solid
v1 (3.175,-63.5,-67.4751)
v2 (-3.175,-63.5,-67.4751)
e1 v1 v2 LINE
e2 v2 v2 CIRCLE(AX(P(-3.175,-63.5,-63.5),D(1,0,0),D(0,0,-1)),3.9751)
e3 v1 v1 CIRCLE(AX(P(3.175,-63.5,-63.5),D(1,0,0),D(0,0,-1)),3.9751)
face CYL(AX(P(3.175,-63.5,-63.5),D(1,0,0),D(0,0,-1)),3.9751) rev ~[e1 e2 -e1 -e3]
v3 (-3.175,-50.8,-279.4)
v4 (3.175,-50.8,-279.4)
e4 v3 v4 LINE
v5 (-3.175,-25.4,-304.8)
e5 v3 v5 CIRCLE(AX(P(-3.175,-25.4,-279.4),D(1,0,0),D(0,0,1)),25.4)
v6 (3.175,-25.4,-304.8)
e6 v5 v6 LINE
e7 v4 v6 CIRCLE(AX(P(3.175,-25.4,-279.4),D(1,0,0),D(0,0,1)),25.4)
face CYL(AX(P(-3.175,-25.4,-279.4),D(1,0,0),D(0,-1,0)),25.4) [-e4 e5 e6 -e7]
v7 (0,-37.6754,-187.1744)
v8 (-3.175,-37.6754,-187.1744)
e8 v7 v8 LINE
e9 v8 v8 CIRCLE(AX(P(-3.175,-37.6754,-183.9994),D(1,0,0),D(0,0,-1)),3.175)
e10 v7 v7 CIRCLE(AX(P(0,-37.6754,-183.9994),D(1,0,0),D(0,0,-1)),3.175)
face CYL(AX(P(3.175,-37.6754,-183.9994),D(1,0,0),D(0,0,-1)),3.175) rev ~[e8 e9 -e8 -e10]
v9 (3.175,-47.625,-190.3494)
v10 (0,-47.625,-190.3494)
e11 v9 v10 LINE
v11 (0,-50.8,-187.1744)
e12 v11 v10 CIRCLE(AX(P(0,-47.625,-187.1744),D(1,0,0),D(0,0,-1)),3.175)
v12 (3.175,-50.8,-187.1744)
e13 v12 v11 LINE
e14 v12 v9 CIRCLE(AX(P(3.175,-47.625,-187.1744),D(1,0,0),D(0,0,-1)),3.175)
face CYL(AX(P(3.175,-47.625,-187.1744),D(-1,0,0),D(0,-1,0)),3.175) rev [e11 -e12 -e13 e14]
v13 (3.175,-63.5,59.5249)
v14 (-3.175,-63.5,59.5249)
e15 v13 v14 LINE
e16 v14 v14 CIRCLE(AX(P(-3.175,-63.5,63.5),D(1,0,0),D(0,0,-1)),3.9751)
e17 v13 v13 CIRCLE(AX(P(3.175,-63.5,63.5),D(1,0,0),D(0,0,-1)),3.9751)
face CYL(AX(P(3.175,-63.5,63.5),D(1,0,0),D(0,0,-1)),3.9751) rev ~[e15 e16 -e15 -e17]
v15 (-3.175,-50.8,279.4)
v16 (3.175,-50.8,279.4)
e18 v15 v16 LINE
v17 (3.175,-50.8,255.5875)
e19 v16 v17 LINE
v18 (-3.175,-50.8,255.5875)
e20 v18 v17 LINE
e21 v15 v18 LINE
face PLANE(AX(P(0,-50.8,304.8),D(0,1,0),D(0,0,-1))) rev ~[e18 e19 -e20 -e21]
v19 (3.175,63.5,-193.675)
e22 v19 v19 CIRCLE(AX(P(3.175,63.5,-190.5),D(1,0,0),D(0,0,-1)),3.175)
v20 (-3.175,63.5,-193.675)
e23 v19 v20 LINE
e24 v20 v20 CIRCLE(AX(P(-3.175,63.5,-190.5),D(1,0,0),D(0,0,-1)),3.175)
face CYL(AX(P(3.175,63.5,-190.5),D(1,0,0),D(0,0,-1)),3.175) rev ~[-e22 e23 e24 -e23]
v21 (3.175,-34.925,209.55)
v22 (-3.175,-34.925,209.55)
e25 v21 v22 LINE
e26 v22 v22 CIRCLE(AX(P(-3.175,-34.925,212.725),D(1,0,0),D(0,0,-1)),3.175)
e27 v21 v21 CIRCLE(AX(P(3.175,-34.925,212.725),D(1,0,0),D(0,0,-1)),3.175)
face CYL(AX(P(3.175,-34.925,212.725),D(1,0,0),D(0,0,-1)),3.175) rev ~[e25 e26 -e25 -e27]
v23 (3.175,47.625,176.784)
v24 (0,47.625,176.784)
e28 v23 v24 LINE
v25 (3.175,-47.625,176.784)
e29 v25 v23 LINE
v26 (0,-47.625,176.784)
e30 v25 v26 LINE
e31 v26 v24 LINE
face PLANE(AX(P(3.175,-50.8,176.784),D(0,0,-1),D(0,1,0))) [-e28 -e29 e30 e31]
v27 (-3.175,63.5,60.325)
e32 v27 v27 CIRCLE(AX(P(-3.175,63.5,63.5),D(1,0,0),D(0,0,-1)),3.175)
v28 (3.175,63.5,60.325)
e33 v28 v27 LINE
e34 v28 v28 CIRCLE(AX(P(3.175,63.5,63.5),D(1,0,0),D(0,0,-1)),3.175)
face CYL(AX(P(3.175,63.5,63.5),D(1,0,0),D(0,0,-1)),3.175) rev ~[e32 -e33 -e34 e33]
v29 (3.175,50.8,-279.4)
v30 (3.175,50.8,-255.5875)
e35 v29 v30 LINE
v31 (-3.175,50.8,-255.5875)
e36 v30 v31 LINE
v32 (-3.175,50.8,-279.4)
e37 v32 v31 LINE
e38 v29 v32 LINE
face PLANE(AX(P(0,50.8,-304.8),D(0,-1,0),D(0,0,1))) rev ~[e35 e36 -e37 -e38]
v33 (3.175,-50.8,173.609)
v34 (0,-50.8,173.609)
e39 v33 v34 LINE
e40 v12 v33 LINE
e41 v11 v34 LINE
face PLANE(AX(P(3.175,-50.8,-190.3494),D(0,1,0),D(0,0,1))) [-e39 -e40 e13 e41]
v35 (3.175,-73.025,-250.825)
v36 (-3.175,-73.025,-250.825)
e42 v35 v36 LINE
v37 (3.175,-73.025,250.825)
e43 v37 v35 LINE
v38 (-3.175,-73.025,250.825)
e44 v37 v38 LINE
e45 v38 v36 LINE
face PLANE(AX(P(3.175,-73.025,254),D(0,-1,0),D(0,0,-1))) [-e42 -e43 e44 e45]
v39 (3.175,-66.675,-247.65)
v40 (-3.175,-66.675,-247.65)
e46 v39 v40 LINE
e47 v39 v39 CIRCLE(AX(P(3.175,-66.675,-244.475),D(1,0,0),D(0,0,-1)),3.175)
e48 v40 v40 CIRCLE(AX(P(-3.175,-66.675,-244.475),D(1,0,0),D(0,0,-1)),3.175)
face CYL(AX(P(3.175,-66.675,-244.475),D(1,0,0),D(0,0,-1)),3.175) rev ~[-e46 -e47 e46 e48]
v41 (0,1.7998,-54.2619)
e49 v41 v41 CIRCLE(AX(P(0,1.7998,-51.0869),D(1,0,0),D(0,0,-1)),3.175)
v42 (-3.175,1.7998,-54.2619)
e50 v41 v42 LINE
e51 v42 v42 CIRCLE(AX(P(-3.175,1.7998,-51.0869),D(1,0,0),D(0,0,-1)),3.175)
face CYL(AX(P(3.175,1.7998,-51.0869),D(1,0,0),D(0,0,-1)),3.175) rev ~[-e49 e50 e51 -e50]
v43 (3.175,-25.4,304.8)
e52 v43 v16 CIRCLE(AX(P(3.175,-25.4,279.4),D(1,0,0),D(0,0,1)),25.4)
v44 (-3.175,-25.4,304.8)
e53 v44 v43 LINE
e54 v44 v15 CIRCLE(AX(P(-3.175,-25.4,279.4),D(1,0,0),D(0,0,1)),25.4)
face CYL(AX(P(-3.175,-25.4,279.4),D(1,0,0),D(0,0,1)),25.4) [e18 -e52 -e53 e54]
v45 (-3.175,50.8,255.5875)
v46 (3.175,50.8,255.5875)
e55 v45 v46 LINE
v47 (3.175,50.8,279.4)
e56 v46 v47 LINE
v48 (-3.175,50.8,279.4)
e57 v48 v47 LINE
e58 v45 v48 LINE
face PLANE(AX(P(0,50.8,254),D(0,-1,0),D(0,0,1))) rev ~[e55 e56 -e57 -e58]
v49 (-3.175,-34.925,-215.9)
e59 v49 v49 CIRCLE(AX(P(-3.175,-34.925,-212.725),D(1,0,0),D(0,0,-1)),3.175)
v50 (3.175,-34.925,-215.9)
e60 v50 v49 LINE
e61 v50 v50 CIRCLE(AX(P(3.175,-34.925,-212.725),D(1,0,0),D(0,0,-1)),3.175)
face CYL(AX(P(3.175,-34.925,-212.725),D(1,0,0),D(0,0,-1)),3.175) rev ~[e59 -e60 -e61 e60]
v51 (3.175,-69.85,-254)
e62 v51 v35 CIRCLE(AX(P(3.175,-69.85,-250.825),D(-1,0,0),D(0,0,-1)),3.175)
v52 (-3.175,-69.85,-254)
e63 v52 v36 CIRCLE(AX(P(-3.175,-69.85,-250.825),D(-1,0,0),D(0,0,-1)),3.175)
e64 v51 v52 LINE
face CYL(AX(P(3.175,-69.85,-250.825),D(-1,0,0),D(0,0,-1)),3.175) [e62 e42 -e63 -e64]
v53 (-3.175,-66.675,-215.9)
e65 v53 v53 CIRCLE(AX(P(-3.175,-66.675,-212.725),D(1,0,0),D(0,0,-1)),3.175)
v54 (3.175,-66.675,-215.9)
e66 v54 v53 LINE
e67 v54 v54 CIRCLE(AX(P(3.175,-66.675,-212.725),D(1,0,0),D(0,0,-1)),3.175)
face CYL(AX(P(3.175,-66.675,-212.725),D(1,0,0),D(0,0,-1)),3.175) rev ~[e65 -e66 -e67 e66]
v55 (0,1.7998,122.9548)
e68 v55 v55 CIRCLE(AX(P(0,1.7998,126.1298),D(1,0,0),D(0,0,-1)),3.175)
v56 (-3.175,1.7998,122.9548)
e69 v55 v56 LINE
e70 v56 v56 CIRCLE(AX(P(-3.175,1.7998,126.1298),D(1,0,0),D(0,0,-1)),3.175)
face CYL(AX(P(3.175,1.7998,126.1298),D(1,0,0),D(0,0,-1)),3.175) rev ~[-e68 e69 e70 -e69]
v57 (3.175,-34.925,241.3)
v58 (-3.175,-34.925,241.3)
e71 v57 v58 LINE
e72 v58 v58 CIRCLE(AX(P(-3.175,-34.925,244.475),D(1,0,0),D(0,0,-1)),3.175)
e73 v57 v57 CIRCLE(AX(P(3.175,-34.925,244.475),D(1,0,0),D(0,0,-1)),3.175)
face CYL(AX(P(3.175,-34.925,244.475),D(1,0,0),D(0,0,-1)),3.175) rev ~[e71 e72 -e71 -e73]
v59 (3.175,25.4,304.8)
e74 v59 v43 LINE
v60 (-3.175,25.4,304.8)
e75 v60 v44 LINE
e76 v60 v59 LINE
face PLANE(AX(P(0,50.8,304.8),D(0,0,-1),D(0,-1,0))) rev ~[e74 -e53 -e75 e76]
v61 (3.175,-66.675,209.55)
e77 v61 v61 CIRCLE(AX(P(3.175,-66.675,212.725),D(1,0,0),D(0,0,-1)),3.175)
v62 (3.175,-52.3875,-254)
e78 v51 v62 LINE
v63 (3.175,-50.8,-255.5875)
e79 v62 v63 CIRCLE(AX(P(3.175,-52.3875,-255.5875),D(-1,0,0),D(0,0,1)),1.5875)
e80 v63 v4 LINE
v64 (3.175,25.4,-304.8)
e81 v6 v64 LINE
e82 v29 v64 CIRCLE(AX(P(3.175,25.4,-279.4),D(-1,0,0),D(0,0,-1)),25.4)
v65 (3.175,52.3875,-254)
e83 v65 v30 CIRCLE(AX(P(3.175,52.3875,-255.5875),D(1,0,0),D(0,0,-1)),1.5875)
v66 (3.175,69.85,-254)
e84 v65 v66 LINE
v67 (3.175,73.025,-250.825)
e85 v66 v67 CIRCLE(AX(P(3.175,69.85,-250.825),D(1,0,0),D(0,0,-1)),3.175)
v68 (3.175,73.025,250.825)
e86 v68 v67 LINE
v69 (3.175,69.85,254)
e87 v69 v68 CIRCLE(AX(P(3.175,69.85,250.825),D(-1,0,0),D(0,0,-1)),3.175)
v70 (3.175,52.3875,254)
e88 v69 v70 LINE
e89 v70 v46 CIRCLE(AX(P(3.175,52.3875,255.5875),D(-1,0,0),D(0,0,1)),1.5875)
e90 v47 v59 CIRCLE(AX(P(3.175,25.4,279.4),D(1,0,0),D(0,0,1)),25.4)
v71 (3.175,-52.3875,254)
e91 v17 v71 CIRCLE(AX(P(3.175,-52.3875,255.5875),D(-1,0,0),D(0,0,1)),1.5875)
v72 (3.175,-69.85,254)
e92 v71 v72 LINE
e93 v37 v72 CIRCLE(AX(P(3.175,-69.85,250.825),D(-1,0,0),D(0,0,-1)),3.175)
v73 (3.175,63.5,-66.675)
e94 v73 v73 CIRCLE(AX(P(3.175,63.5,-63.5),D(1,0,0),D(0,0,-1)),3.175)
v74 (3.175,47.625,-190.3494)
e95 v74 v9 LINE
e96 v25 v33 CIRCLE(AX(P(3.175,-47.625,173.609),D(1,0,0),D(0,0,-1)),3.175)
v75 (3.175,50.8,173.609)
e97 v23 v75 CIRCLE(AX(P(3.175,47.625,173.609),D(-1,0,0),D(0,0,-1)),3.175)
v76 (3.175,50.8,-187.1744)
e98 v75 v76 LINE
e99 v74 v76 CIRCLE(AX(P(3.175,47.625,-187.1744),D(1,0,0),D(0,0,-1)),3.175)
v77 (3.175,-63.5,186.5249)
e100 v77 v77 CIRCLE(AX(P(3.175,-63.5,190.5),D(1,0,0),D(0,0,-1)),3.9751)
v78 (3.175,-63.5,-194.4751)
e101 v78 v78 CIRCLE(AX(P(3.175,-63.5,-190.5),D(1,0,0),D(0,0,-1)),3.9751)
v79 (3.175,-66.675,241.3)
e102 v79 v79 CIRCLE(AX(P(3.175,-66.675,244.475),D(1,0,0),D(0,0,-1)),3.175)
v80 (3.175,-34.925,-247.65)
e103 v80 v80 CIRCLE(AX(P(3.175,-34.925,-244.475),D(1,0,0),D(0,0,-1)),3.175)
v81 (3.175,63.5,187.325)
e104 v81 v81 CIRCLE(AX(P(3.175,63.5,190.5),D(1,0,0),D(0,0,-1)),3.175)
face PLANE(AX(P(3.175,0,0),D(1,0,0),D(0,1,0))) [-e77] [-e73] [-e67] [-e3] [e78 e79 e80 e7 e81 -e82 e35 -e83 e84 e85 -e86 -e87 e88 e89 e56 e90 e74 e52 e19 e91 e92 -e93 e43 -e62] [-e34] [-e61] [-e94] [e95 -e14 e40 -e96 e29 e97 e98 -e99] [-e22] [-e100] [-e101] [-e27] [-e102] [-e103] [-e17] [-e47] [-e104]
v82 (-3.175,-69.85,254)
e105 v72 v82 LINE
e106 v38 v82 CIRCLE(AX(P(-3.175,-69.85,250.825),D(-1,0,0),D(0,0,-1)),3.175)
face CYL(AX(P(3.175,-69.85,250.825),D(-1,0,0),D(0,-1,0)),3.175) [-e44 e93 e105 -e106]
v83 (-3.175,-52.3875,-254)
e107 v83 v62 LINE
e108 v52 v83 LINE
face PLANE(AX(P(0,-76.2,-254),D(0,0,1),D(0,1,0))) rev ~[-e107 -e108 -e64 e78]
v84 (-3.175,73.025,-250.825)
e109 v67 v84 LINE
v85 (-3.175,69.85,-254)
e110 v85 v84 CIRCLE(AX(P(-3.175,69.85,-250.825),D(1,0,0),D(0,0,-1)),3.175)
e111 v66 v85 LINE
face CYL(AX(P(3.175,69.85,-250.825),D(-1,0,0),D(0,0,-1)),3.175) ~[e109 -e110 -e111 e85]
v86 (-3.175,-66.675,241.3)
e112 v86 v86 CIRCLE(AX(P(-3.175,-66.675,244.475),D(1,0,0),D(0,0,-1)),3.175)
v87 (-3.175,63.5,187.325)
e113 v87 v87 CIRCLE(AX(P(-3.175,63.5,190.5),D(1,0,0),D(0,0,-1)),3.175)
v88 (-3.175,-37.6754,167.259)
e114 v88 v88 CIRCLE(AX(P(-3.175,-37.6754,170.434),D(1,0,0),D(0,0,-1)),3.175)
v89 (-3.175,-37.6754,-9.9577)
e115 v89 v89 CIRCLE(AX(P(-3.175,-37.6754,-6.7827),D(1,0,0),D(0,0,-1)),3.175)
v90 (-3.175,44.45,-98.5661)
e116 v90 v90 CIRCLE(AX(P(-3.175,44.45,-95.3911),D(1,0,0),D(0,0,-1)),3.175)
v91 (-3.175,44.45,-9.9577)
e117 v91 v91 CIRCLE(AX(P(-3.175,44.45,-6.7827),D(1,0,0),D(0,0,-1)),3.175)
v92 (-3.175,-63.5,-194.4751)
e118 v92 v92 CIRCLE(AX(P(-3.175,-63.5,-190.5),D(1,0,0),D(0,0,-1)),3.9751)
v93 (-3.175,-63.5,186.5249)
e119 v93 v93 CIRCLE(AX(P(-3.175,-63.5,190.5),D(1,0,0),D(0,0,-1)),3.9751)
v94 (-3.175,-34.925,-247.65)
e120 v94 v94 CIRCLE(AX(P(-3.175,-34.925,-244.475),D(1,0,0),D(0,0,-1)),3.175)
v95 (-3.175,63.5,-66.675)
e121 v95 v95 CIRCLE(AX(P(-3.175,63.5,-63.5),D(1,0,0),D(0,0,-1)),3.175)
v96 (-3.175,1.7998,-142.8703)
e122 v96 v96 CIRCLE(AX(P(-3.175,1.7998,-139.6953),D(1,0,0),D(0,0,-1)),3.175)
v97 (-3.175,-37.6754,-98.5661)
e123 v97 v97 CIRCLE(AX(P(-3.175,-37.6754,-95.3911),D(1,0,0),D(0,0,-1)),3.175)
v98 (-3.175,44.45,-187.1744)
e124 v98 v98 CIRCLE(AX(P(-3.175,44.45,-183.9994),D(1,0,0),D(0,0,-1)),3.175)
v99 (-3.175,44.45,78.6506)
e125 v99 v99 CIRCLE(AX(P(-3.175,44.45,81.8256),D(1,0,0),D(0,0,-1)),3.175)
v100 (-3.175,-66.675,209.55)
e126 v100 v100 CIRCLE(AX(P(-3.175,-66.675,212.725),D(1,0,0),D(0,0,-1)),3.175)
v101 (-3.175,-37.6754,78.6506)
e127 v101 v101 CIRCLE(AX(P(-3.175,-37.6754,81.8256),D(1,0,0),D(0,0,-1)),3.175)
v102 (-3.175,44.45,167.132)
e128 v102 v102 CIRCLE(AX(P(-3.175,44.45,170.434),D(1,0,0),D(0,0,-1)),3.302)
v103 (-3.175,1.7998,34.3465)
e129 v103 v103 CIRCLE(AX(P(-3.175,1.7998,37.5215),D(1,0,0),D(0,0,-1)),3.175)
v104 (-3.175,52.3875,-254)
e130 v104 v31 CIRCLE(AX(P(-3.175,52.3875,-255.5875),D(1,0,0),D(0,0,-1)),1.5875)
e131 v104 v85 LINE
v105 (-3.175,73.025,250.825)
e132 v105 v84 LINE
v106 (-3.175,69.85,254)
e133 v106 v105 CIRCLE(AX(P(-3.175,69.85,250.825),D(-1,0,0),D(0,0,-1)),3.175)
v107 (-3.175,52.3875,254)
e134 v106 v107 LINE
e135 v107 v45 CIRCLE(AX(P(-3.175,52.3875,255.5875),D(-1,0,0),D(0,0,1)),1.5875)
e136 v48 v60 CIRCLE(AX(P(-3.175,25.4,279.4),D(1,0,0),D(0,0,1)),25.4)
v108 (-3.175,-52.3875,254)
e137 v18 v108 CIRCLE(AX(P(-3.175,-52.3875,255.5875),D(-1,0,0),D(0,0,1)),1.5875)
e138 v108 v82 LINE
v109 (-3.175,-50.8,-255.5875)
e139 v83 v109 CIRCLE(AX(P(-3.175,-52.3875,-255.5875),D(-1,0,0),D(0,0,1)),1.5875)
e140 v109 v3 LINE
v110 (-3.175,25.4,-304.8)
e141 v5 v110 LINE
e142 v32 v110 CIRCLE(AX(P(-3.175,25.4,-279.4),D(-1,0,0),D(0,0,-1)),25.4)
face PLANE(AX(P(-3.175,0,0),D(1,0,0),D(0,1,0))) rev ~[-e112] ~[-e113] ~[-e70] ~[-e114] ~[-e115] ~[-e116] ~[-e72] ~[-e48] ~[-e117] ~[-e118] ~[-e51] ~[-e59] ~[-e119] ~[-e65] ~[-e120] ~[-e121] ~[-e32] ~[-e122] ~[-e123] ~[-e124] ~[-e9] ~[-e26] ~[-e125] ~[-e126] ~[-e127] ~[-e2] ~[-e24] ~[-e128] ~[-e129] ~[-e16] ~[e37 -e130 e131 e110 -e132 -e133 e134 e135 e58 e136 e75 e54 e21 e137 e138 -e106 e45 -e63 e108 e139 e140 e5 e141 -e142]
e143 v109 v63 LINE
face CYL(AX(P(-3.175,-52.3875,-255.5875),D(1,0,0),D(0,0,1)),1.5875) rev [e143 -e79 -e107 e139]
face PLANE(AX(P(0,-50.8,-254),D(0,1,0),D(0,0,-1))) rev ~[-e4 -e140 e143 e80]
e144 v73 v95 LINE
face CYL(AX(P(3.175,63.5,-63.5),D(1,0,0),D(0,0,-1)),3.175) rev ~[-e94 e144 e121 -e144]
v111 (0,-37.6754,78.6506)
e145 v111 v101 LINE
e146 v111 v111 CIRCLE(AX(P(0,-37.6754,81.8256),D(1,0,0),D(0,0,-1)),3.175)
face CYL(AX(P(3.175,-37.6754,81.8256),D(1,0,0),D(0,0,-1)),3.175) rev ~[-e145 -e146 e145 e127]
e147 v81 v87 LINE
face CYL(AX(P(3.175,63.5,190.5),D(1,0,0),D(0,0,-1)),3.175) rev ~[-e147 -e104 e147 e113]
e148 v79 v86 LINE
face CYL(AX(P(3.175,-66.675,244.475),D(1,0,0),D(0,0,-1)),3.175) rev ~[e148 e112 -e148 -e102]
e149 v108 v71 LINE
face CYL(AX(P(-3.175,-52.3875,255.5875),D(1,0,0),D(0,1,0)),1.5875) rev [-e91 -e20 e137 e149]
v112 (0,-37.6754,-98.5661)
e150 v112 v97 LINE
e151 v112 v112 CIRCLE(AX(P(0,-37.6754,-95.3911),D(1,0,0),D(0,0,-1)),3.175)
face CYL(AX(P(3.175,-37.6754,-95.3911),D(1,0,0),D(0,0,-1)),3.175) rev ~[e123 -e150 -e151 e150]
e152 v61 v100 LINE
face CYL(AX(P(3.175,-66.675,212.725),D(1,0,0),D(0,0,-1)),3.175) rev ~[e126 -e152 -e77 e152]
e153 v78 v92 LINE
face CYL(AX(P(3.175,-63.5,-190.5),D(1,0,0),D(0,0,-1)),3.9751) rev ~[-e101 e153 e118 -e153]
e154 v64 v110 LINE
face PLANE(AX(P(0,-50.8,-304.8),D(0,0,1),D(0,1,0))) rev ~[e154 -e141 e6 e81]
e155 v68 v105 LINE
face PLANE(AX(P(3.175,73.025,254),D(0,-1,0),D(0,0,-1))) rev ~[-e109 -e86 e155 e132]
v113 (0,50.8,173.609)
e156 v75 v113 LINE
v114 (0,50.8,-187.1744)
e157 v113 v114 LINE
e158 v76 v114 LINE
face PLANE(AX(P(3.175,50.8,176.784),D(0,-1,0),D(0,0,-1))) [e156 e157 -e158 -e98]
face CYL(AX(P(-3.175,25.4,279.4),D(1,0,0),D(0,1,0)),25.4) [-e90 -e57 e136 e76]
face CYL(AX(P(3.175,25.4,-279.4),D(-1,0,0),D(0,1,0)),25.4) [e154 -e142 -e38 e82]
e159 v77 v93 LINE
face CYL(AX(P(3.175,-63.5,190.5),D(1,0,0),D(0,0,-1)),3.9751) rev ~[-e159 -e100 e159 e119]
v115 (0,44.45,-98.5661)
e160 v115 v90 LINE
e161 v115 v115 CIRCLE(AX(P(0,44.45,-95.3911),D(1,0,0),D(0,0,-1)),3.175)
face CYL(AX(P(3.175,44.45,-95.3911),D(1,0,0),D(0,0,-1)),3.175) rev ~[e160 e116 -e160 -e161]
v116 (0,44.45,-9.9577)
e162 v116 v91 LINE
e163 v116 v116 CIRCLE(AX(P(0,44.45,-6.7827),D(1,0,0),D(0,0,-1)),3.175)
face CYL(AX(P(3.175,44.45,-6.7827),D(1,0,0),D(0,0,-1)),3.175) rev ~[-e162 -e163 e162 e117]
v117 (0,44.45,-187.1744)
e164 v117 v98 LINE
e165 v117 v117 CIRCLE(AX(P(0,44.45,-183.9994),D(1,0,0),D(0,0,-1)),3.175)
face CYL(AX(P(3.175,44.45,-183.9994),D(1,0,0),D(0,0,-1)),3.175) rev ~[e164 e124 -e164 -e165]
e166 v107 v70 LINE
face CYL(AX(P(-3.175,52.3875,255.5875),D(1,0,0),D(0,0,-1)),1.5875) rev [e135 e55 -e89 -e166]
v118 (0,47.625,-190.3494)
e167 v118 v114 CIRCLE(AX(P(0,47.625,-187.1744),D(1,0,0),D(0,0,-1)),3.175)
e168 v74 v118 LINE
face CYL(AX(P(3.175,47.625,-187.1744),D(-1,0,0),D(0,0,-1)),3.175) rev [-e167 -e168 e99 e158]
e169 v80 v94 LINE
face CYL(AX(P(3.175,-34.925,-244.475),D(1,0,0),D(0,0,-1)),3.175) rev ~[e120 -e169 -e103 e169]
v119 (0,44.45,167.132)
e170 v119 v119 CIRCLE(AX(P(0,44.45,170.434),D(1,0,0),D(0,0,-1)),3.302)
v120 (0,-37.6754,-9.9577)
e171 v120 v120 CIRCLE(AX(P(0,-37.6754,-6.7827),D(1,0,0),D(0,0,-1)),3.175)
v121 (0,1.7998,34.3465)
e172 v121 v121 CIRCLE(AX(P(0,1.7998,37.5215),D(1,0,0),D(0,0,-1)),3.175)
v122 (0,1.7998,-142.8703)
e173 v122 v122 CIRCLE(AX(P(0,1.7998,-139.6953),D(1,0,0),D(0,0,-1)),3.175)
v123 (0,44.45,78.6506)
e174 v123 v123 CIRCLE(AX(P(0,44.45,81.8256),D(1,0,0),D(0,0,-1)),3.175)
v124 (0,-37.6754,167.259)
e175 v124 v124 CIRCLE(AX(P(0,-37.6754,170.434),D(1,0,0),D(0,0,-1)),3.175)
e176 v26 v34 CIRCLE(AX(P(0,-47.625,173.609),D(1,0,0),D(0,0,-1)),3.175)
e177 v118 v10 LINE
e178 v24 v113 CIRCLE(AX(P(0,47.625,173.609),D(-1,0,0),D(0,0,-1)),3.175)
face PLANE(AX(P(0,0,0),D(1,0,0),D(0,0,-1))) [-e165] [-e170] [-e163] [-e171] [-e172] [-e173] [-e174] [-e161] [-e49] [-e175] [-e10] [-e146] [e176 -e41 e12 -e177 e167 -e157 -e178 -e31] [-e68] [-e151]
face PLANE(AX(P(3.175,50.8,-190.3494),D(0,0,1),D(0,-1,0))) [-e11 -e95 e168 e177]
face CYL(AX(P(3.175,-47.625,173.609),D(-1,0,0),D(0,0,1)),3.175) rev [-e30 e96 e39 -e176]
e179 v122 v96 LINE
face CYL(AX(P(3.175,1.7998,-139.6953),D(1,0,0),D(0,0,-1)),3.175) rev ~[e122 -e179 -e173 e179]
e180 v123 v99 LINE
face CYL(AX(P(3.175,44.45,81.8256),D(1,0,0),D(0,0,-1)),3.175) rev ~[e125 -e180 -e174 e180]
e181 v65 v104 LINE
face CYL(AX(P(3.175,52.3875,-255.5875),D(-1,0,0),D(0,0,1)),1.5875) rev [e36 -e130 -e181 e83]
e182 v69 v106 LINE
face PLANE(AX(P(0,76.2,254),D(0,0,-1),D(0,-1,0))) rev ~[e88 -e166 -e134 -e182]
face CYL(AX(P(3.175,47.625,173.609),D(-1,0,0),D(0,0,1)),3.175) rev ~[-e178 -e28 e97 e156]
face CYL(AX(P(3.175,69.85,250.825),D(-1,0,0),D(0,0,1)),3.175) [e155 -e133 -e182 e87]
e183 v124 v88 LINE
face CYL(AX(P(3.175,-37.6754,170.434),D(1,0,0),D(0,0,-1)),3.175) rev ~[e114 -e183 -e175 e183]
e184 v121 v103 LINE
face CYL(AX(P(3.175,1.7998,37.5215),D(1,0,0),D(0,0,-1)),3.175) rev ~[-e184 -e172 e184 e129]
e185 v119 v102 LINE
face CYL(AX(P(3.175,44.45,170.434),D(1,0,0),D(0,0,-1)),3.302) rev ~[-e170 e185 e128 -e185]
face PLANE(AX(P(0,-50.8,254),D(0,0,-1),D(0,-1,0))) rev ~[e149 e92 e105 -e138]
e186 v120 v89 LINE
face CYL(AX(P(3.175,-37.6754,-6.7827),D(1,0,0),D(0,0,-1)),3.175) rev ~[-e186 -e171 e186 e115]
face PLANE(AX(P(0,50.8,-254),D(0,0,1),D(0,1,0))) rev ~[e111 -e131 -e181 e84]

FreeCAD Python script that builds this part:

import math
import FreeCAD as App
import Part
import Sketcher

V = App.Vector
Q = App.Units.Quantity


def edges_at(feature, points):
    """Names of the edges that pass closest to the given points."""
    edges = feature.Shape.Edges
    near = lambda p: min(range(len(edges)), key=lambda i: edges[i].distToShape(Part.Vertex(*p))[0])
    return sorted({f"Edge{near(p) + 1}" for p in points})


def add_polygon(sketch, points):
    """Adds a closed chain of lines whose ends are joined by coincident constraints."""
    first, n = sketch.GeometryCount, len(points)
    for a, b in zip(points, points[1:] + points[:1]):
        sketch.addGeometry(Part.LineSegment(App.Vector(*a, 0), App.Vector(*b, 0)), False)
    for i in range(n):
        sketch.addConstraint(Sketcher.Constraint("Coincident", first + i, 2, first + (i + 1) % n, 1))

doc = App.newDocument("Part")
body = doc.addObject("PartDesign::Body", "Body")

sketch1 = body.newObject("Sketcher::SketchObject", "Sketch")
sketch1.AttachmentSupport = (doc.getObject("YZ_Plane"), [""])
sketch1.MapMode = "FlatFace"
add_polygon(sketch1, [(76, -254), (76, 254), (51, 254), (51, 305), (-51, 305), (-51, 254), (-76, 254), (-76, -254), (-51, -254), (-51, -305), (51, -305), (51, -254)])
sketch1.addConstraint([
    Sketcher.Constraint("Vertical", 0),
    Sketcher.Constraint("Horizontal", 1),
    Sketcher.Constraint("Vertical", 2),
    Sketcher.Constraint("Horizontal", 3),
    Sketcher.Constraint("Vertical", 4),
    Sketcher.Constraint("Horizontal", 5),
    Sketcher.Constraint("Vertical", 6),
    Sketcher.Constraint("Horizontal", 7),
    Sketcher.Constraint("Vertical", 8),
    Sketcher.Constraint("Horizontal", 9),
    Sketcher.Constraint("Vertical", 10),
    Sketcher.Constraint("Horizontal", 11),
    Sketcher.Constraint("Symmetric", 0, 2, 6, 2, -1, 1),
    Sketcher.Constraint("Symmetric", 2, 2, 8, 2, -1, 1),
    Sketcher.Constraint("Symmetric", 4, 2, 10, 2, -1, 1),
    Sketcher.Constraint("Symmetric", 1, 2, 4, 2, -2),
    Sketcher.Constraint("DistanceX", 3, 2, 3, 1, Q("4 in")),
    Sketcher.Constraint("DistanceY", 0, 1, 0, 2, Q("20 in")),
    Sketcher.Constraint("DistanceY", 2, 1, 2, 2, Q("2 in")),
    Sketcher.Constraint("DistanceX", 5, 2, 0, 2, Q("6 in")),
])
pad1 = body.newObject("PartDesign::Pad", "Pad")
pad1.Profile = sketch1
pad1.Length = Q("0.25 in")
pad1.Midplane = True
doc.recompute()

fillet = body.newObject("PartDesign::Fillet", "Fillet")
fillet.Base = (pad1, edges_at(pad1, [
    (0, 50.8, 304.8),
    (0, -50.8, 304.8),
    (0, 50.8, -304.8),
    (0, -50.8, -304.8),
]))
fillet.Radius = Q("1 in")
doc.recompute()

fillet2 = body.newObject("PartDesign::Fillet", "Fillet001")
fillet2.Base = (fillet, edges_at(fillet, [
    (0, 50.8, 254),
    (0, -50.8, 254),
    (0, -76.2, 254),
    (0, 76.2, 254),
    (0, 76.2, -254),
    (0, 50.8, -254),
    (0, -50.8, -254),
    (0, -76.2, -254),
]))
fillet2.Radius = Q("0.0625 in")

sketch2 = body.newObject("Sketcher::SketchObject", "Sketch001")
sketch2.AttachmentSupport = (doc.getObject("YZ_Plane"), [""])
sketch2.MapMode = "FlatFace"
sketch2.AttachmentOffset = App.Placement(V(0, 0, 0.125 * 25.4), App.Rotation())
sketch2.addGeometry([
    Part.Circle(V(63.5, 190.5, 0), V(0, 0, 1), 3.2),
    Part.Circle(V(-63.5, 190.5, 0), V(0, 0, 1), 4),
    Part.Circle(V(63.5, 63.5, 0), V(0, 0, 1), 3.2),
    Part.Circle(V(-63.5, 63.5, 0), V(0, 0, 1), 4),
    Part.Circle(V(63.5, -63.5, 0), V(0, 0, 1), 3.2),
    Part.Circle(V(-63.5, -63.5, 0), V(0, 0, 1), 4),
    Part.Circle(V(63.5, -190.5, 0), V(0, 0, 1), 3.2),
    Part.Circle(V(-63.5, -190.5, 0), V(0, 0, 1), 4),
], False)
sketch2.addConstraint([
    Sketcher.Constraint("Equal", 0, 2),
    Sketcher.Constraint("Equal", 1, 3),
    Sketcher.Constraint("Equal", 2, 4),
    Sketcher.Constraint("Equal", 3, 5),
    Sketcher.Constraint("Equal", 4, 6),
    Sketcher.Constraint("Equal", 5, 7),
    Sketcher.Constraint("Symmetric", 3, 3, 4, 3, -1, 1),
    Sketcher.Constraint("Symmetric", 2, 3, 5, 3, -1, 1),
    Sketcher.Constraint("Symmetric", 1, 3, 6, 3, -1, 1),
    Sketcher.Constraint("Symmetric", 0, 3, 7, 3, -1, 1),
    Sketcher.Constraint("Symmetric", 0, 3, 1, 3, -2),
    Sketcher.Constraint("Symmetric", 2, 3, 3, 3, -2),
    Sketcher.Constraint("Vertical", 0, 3, 2, 3),
    Sketcher.Constraint("Diameter", 0, Q("0.25 in")),
    Sketcher.Constraint("Diameter", 1, Q("0.313 in")),
    Sketcher.Constraint("DistanceX", 1, 3, 0, 3, Q("5 in")),
    Sketcher.Constraint("DistanceY", 2, 3, 0, 3, Q("5 in")),
    Sketcher.Constraint("DistanceY", 4, 3, 2, 3, Q("5 in")),
])
pocket1 = body.newObject("PartDesign::Pocket", "Pocket")
pocket1.Profile = sketch2
pocket1.Type = "ThroughAll"

sketch3 = body.newObject("Sketcher::SketchObject", "Sketch002")
sketch3.AttachmentSupport = (doc.getObject("YZ_Plane"), [""])
sketch3.MapMode = "FlatFace"
sketch3.AttachmentOffset = App.Placement(V(0, 0, 0.125 * 25.4), App.Rotation())
sketch3.addGeometry([
    Part.Circle(V(44.5, 170.4, 0), V(0, 0, 1), 3.3),
    Part.Circle(V(44.5, -184, 0), V(0, 0, 1), 3.2),
    Part.Circle(V(44.5, 81.8, 0), V(0, 0, 1), 3.2),
    Part.Circle(V(44.5, -6.8, 0), V(0, 0, 1), 3.2),
    Part.Circle(V(44.5, -95.4, 0), V(0, 0, 1), 3.2),
    Part.Circle(V(1.8, 37.5, 0), V(0, 0, 1), 3.2),
    Part.Circle(V(1.8, -51.1, 0), V(0, 0, 1), 3.2),
    Part.Circle(V(1.8, 126.1, 0), V(0, 0, 1), 3.2),
    Part.Circle(V(1.8, -139.7, 0), V(0, 0, 1), 3.2),
    Part.Circle(V(-37.7, 170.4, 0), V(0, 0, 1), 3.2),
    Part.Circle(V(-37.7, 81.8, 0), V(0, 0, 1), 3.2),
    Part.Circle(V(-37.7, -6.8, 0), V(0, 0, 1), 3.2),
    Part.Circle(V(-37.7, -95.4, 0), V(0, 0, 1), 3.2),
    Part.Circle(V(-37.7, -184, 0), V(0, 0, 1), 3.2),
], False)
sketch3.addConstraint([
    Sketcher.Constraint("Equal", 1, 2),
    Sketcher.Constraint("Equal", 2, 3),
    Sketcher.Constraint("Equal", 3, 4),
    Sketcher.Constraint("Equal", 4, 5),
    Sketcher.Constraint("Equal", 5, 6),
    Sketcher.Constraint("Equal", 6, 7),
    Sketcher.Constraint("Equal", 7, 8),
    Sketcher.Constraint("Equal", 8, 9),
    Sketcher.Constraint("Equal", 9, 10),
    Sketcher.Constraint("Equal", 10, 11),
    Sketcher.Constraint("Equal", 11, 12),
    Sketcher.Constraint("Equal", 12, 13),
    Sketcher.Constraint("Horizontal", 0, 3, 9, 3),
    Sketcher.Constraint("Horizontal", 2, 3, 10, 3),
    Sketcher.Constraint("Horizontal", 3, 3, 11, 3),
    Sketcher.Constraint("Horizontal", 4, 3, 12, 3),
    Sketcher.Constraint("Horizontal", 1, 3, 13, 3),
    Sketcher.Constraint("Vertical", 0, 3, 1, 3),
    Sketcher.Constraint("Vertical", 1, 3, 2, 3),
    Sketcher.Constraint("Vertical", 2, 3, 3, 3),
    Sketcher.Constraint("Vertical", 3, 3, 4, 3),
    Sketcher.Constraint("Vertical", 5, 3, 6, 3),
    Sketcher.Constraint("Vertical", 6, 3, 7, 3),
    Sketcher.Constraint("Vertical", 7, 3, 8, 3),
    Sketcher.Constraint("Vertical", 9, 3, 10, 3),
    Sketcher.Constraint("Vertical", 10, 3, 11, 3),
    Sketcher.Constraint("Vertical", 11, 3, 12, 3),
    Sketcher.Constraint("Vertical", 12, 3, 13, 3),
    Sketcher.Constraint("Diameter", 0, Q("0.26 in")),
    Sketcher.Constraint("Diameter", 1, Q("0.25 in")),
    Sketcher.Constraint("DistanceX", -1, 1, 0, 3, Q("1.75 in")),
    Sketcher.Constraint("DistanceY", -1, 1, 0, 3, Q("6.71 in")),
    Sketcher.Constraint("DistanceY", 2, 3, 0, 3, 88.6084),
    Sketcher.Constraint("DistanceY", 3, 3, 2, 3, 88.6083),
    Sketcher.Constraint("DistanceY", 1, 3, 3, 3, 177.2167),
    Sketcher.Constraint("DistanceY", 1, 3, 4, 3, 88.6083),
    Sketcher.Constraint("DistanceX", 5, 3, 2, 3, 42.6502),
    Sketcher.Constraint("DistanceY", 5, 3, 2, 3, 44.304),
    Sketcher.Constraint("DistanceY", 6, 3, 3, 3, 44.3042),
    Sketcher.Constraint("DistanceY", 7, 3, 0, 3, 44.3042),
    Sketcher.Constraint("DistanceY", 1, 3, 8, 3, 44.304),
    Sketcher.Constraint("DistanceX", 9, 3, 0, 3, 82.1254),
])
pocket2 = body.newObject("PartDesign::Pocket", "Pocket001")
pocket2.Profile = sketch3
pocket2.Length = Q("1 in")

sketch4 = body.newObject("Sketcher::SketchObject", "Sketch003")
sketch4.AttachmentSupport = (doc.getObject("YZ_Plane"), [""])
sketch4.MapMode = "FlatFace"
sketch4.AttachmentOffset = App.Placement(V(0, 0, 0.125 * 25.4), App.Rotation())
add_polygon(sketch4, [(51, -190), (51, 177), (-51, 177), (-51, -190)])
sketch4.addConstraint([
    Sketcher.Constraint("Vertical", 0),
    Sketcher.Constraint("Horizontal", 1),
    Sketcher.Constraint("Vertical", 2),
    Sketcher.Constraint("Horizontal", 3),
    Sketcher.Constraint("DistanceX", 1, 2, 1, 1, Q("4 in")),
    Sketcher.Constraint("DistanceX", -1, 1, 0, 2, Q("2 in")),
    Sketcher.Constraint("DistanceY", 0, 1, 0, 2, 367.1334),
    Sketcher.Constraint("DistanceY", -1, 1, 0, 2, Q("6.96 in")),
])
pocket3 = body.newObject("PartDesign::Pocket", "Pocket002")
pocket3.Profile = sketch4
pocket3.Length = Q("0.125 in")
doc.recompute()

fillet3 = body.newObject("PartDesign::Fillet", "Fillet002")
fillet3.Base = (pocket3, edges_at(pocket3, [
    (1.587, 50.8, 176.784),
    (1.587, -50.8, 176.784),
    (1.587, -50.8, -190.349),
    (1.587, 50.8, -190.349),
]))
fillet3.Radius = Q("0.125 in")

sketch5 = body.newObject("Sketcher::SketchObject", "Sketch004")
sketch5.AttachmentSupport = (doc.getObject("YZ_Plane"), [""])
sketch5.MapMode = "FlatFace"
sketch5.AttachmentOffset = App.Placement(V(0, 0, 0.125 * 25.4), App.Rotation())
sketch5.addGeometry([
    Part.Circle(V(-34.9, 244.5, 0), V(0, 0, 1), 3.2),
    Part.Circle(V(-66.7, 244.5, 0), V(0, 0, 1), 3.2),
    Part.Circle(V(-66.7, 212.7, 0), V(0, 0, 1), 3.2),
    Part.Circle(V(-34.9, 212.7, 0), V(0, 0, 1), 3.2),
    Part.Circle(V(-34.9, -212.7, 0), V(0, 0, 1), 3.2),
    Part.Circle(V(-34.9, -244.5, 0), V(0, 0, 1), 3.2),
    Part.Circle(V(-66.7, -212.7, 0), V(0, 0, 1), 3.2),
    Part.Circle(V(-66.7, -244.5, 0), V(0, 0, 1), 3.2),
], False)
sketch5.addConstraint([
    Sketcher.Constraint("Equal", 0, 1),
    Sketcher.Constraint("Equal", 1, 2),
    Sketcher.Constraint("Equal", 2, 3),
    Sketcher.Constraint("Equal", 3, 4),
    Sketcher.Constraint("Equal", 4, 5),
    Sketcher.Constraint("Equal", 5, 6),
    Sketcher.Constraint("Equal", 6, 7),
    Sketcher.Constraint("Symmetric", 3, 3, 4, 3, -1),
    Sketcher.Constraint("Symmetric", 0, 3, 5, 3, -1),
    Sketcher.Constraint("Symmetric", 2, 3, 6, 3, -1),
    Sketcher.Constraint("Symmetric", 1, 3, 7, 3, -1),
    Sketcher.Constraint("Horizontal", 0, 3, 1, 3),
    Sketcher.Constraint("Horizontal", 2, 3, 3, 3),
    Sketcher.Constraint("Vertical", 1, 3, 2, 3),
    Sketcher.Constraint("Vertical", 0, 3, 3, 3),
    Sketcher.Constraint("Diameter", 0, Q("0.25 in")),
    Sketcher.Constraint("DistanceY", 4, 3, 0, 3, Q("18 in")),
    Sketcher.Constraint("DistanceX", 1, 3, 0, 3, Q("1.25 in")),
    Sketcher.Constraint("DistanceY", 2, 3, 1, 3, Q("1.25 in")),
    Sketcher.Constraint("DistanceX", 0, 3, -1, 1, Q("1.375 in")),
])
pocket4 = body.newObject("PartDesign::Pocket", "Pocket003")
pocket4.Profile = sketch5
pocket4.Length = Q("1 in")

sketch6 = body.newObject("Sketcher::SketchObject", "Sketch005")
sketch6.AttachmentSupport = (doc.getObject("YZ_Plane"), [""])
sketch6.MapMode = "FlatFace"
sketch6.AttachmentOffset = App.Placement(V(0, 0, 0.125 * 25.4), App.Rotation())
sketch6.addGeometry([
    Part.ArcOfCircle(Part.Circle(V(74.6, 252.4, 0), V(0, 0, 1), 1.6), math.radians(0), math.radians(90)),
    Part.LineSegment(V(74.6, 254, 0), V(73, 254, 0)),
    Part.LineSegment(V(73, 254, 0), V(73, -254, 0)),
    Part.LineSegment(V(73, -254, 0), V(74.6, -254, 0)),
    Part.ArcOfCircle(Part.Circle(V(74.6, -252.4, 0), V(0, 0, 1), 1.6), math.radians(-90), math.radians(0)),
    Part.LineSegment(V(76.2, -252.4, 0), V(76.2, 252.4, 0)),
    Part.LineSegment(V(-73, -254, 0), V(-73, 254, 0)),
    Part.LineSegment(V(-73, 254, 0), V(-74.6, 254, 0)),
    Part.ArcOfCircle(Part.Circle(V(-74.6, 252.4, 0), V(0, 0, 1), 1.6), math.radians(90), math.radians(180)),
    Part.LineSegment(V(-76.2, 252.4, 0), V(-76.2, -252.4, 0)),
    Part.ArcOfCircle(Part.Circle(V(-74.6, -252.4, 0), V(0, 0, 1), 1.6), math.radians(180), math.radians(270)),
    Part.LineSegment(V(-74.6, -254, 0), V(-73, -254, 0)),
], False)
sketch6.addConstraint([
    Sketcher.Constraint("Tangent", 0, 2, 1, 1),
    Sketcher.Constraint("Coincident", 1, 2, 2, 1),
    Sketcher.Constraint("Coincident", 2, 2, 3, 1),
    Sketcher.Constraint("Tangent", 3, 2, 4, 1),
    Sketcher.Constraint("Tangent", 4, 2, 5, 1),
    Sketcher.Constraint("Tangent", 5, 2, 0, 1),
    Sketcher.Constraint("Coincident", 6, 2, 7, 1),
    Sketcher.Constraint("Tangent", 7, 2, 8, 1),
    Sketcher.Constraint("Tangent", 8, 2, 9, 1),
    Sketcher.Constraint("Tangent", 9, 2, 10, 1),
    Sketcher.Constraint("Tangent", 10, 2, 11, 1),
    Sketcher.Constraint("Coincident", 11, 2, 6, 1),
    Sketcher.Constraint("Horizontal", 1),
    Sketcher.Constraint("Vertical", 2),
    Sketcher.Constraint("Horizontal", 3),
    Sketcher.Constraint("Vertical", 5),
    Sketcher.Constraint("Vertical", 6),
    Sketcher.Constraint("Horizontal", 7),
    Sketcher.Constraint("Vertical", 9),
    Sketcher.Constraint("Horizontal", 11),
    Sketcher.Constraint("Equal", 0, 4),
    Sketcher.Constraint("Equal", 4, 8),
    Sketcher.Constraint("Equal", 8, 10),
    Sketcher.Constraint("Symmetric", 4, 3, 8, 3, -1, 1),
    Sketcher.Constraint("Symmetric", 1, 2, 11, 2, -1, 1),
    Sketcher.Constraint("Horizontal", 0, 3, 8, 3),
    Sketcher.Constraint("Radius", 0, Q("0.0625 in")),
    Sketcher.Constraint("DistanceY", 2, 2, 2, 1, Q("20 in")),
    Sketcher.Constraint("DistanceX", -1, 1, 4, 2, Q("3 in")),
    Sketcher.Constraint("DistanceX", 2, 2, 4, 2, Q("0.125 in")),
])
pocket5 = body.newObject("PartDesign::Pocket", "Pocket004")
pocket5.Profile = sketch6
pocket5.Length = Q("1 in")
doc.recompute()

fillet4 = body.newObject("PartDesign::Fillet", "Fillet003")
fillet4.Base = (pocket5, edges_at(pocket5, [
    (0, 73.025, 254),
    (0, 73.025, -254),
    (0, -73.025, -254),
    (0, -73.025, 254),
]))
fillet4.Radius = Q("0.125 in")

doc.recompute()
